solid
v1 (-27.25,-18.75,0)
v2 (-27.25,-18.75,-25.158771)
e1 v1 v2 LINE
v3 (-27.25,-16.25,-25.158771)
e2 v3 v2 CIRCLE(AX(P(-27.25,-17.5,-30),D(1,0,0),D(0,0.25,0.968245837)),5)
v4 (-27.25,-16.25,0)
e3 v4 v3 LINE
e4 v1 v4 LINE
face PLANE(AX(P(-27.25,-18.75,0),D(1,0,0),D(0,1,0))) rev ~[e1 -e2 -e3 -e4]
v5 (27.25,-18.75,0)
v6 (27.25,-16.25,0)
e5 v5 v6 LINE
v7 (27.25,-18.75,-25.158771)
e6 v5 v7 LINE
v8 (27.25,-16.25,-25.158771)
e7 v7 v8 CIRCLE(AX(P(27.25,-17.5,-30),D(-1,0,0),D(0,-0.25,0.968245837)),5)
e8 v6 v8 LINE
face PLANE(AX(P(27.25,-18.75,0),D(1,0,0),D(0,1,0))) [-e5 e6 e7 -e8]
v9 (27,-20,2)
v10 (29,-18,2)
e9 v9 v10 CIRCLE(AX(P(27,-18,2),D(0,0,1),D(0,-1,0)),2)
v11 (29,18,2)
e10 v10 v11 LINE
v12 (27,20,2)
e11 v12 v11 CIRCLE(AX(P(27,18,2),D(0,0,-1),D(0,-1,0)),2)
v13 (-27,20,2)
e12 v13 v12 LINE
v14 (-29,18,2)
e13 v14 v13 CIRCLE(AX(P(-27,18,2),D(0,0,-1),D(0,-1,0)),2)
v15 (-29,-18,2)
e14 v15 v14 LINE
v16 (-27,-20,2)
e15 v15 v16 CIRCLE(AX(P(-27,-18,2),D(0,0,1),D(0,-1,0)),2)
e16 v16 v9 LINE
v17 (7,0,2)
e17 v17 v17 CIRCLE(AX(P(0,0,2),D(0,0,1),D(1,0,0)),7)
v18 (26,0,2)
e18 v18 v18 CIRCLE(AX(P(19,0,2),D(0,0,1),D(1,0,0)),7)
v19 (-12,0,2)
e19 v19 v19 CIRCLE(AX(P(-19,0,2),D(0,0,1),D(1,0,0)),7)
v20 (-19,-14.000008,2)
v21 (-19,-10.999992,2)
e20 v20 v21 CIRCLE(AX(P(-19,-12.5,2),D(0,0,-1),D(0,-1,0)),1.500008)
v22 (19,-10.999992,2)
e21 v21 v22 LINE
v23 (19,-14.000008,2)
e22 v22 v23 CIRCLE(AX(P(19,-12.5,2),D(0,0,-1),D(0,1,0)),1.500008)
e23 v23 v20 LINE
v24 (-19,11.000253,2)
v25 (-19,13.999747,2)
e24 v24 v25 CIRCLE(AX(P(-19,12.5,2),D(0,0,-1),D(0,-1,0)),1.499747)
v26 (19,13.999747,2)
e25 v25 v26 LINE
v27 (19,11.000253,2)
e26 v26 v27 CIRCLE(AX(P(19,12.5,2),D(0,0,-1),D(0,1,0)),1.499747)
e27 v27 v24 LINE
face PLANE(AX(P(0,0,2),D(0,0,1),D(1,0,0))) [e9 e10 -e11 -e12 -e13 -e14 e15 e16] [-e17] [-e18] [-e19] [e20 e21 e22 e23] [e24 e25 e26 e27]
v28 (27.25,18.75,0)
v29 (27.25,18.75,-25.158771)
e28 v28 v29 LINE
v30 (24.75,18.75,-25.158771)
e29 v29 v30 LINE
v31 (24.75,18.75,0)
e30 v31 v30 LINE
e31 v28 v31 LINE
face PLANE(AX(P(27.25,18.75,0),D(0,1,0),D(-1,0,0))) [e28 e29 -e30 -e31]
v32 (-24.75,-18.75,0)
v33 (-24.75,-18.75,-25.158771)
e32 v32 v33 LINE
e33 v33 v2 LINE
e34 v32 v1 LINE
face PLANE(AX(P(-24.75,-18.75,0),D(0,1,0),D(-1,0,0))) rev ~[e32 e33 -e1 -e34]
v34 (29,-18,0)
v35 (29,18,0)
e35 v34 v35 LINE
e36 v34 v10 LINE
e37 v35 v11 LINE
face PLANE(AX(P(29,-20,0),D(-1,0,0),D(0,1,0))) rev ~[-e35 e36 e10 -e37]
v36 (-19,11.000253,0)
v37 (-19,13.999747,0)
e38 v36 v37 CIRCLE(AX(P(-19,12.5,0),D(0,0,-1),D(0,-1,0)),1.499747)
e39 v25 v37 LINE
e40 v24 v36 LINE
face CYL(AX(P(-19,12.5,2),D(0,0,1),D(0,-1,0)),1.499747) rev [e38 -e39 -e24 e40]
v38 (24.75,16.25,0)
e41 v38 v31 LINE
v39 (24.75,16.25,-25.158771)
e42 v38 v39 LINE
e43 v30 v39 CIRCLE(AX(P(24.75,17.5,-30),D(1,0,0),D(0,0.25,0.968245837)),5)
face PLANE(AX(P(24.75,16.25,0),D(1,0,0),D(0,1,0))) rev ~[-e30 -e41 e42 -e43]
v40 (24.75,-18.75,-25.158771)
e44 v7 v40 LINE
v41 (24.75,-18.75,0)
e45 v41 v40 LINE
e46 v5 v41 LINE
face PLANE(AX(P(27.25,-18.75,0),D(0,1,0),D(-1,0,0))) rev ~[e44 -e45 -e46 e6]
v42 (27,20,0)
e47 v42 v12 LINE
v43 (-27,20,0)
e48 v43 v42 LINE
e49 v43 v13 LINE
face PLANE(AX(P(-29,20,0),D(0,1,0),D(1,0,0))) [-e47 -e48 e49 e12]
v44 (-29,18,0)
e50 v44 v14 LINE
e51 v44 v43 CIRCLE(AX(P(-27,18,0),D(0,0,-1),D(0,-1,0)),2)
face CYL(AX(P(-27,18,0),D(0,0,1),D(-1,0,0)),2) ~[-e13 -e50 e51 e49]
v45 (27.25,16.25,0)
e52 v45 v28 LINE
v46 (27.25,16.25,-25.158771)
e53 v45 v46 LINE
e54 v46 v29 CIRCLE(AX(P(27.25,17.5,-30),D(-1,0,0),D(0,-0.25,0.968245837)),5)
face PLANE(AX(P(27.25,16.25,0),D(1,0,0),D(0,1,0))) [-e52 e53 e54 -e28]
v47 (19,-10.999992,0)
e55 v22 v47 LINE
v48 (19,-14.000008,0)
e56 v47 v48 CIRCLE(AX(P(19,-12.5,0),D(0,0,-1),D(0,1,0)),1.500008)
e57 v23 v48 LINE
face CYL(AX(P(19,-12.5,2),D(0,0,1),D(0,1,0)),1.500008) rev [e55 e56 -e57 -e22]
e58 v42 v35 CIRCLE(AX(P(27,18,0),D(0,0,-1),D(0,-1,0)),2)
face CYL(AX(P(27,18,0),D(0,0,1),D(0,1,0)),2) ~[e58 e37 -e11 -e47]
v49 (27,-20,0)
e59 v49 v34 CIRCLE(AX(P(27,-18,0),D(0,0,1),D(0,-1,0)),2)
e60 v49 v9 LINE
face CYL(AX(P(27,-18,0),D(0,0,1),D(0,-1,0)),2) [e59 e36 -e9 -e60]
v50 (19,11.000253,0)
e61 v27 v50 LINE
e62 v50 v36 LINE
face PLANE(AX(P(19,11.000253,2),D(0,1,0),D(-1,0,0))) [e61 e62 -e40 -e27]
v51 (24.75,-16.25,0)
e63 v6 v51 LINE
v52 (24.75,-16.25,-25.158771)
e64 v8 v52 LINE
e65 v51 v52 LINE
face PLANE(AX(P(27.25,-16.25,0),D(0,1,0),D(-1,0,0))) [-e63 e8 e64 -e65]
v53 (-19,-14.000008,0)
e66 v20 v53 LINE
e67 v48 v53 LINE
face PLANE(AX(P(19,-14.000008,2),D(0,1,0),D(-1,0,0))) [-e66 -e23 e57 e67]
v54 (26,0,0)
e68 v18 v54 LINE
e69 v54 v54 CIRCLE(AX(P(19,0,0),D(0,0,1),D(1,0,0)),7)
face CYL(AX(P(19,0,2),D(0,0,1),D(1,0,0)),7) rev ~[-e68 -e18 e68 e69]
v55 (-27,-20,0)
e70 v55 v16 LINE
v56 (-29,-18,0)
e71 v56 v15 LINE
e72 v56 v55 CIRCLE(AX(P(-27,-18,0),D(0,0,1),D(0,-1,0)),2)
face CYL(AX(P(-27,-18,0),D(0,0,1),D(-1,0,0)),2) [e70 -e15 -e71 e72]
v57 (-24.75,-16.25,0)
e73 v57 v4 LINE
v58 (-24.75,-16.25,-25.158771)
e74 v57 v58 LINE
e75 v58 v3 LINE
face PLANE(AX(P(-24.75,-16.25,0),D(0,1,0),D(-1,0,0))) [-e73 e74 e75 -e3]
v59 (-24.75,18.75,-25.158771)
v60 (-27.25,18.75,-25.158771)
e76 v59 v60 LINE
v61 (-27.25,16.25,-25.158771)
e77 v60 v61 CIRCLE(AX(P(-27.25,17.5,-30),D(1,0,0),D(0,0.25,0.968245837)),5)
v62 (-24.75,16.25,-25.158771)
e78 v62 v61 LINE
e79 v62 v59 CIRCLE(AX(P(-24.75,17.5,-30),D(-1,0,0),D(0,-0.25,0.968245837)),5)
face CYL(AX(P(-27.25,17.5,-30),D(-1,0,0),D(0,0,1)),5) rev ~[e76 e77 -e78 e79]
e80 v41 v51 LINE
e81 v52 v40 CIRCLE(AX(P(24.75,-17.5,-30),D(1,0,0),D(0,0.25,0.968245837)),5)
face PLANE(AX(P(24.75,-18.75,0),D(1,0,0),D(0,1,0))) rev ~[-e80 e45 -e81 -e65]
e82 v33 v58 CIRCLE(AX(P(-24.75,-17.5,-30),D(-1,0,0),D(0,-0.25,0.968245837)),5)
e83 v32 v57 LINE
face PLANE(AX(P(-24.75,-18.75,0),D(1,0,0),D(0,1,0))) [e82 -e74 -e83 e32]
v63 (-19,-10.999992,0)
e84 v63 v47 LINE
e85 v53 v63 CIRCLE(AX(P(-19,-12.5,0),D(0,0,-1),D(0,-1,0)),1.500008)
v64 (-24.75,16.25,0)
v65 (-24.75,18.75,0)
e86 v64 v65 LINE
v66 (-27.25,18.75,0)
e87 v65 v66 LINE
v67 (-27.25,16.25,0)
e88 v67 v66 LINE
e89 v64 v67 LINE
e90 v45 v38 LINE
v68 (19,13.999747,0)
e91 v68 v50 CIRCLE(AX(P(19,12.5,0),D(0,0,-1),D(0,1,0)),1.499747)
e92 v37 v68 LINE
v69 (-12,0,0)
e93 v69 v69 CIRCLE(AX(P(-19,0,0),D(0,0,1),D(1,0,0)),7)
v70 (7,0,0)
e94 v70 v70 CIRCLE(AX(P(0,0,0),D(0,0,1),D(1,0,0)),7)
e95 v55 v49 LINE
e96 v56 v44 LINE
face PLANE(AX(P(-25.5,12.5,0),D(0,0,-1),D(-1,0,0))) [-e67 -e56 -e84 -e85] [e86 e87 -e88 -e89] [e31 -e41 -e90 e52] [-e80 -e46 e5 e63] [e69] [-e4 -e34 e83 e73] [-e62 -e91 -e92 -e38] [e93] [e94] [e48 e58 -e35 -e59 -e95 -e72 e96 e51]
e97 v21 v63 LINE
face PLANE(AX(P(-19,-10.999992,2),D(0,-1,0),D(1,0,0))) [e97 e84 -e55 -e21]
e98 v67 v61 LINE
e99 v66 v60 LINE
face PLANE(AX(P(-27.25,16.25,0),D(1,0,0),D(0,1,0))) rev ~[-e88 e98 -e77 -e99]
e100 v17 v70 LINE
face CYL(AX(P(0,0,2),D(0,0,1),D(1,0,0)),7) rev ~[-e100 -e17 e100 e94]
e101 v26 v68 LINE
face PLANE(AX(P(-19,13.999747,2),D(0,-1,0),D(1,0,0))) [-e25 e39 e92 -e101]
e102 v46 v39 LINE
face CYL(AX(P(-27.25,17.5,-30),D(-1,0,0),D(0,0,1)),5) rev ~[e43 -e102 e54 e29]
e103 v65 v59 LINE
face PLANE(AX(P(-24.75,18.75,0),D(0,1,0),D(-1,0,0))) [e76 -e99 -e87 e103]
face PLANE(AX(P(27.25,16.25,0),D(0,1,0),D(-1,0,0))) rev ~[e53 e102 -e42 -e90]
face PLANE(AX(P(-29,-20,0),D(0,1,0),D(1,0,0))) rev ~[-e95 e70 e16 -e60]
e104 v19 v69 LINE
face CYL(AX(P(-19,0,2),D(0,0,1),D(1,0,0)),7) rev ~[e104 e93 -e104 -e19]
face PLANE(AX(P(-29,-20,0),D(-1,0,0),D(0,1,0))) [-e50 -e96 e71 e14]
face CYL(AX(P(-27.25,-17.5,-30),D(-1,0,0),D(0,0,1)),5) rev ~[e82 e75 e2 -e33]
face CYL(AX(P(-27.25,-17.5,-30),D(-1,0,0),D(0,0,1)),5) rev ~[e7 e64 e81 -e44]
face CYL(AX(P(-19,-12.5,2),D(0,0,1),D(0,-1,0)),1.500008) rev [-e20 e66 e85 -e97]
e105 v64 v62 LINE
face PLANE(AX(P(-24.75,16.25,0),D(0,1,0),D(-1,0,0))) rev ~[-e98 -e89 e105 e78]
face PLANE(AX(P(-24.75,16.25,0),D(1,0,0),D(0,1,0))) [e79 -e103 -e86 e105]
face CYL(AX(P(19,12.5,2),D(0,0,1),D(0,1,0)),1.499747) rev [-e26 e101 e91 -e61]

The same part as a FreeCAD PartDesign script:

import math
import FreeCAD as App
import Part
import Sketcher
from FreeCAD import Vector


def edges_at(feature, points):
    """Names of the edges that pass closest to the given points."""
    edges = feature.Shape.Edges
    near = lambda p: min(range(len(edges)), key=lambda i: edges[i].distToShape(Part.Vertex(*p))[0])
    return sorted({f"Edge{near(p) + 1}" for p in points})


def add_polygon(sketch, points):
    """Adds a closed chain of lines whose ends are joined by coincident constraints."""
    first, n = sketch.GeometryCount, len(points)
    for a, b in zip(points, points[1:] + points[:1]):
        sketch.addGeometry(Part.LineSegment(App.Vector(*a, 0), App.Vector(*b, 0)), False)
    for i in range(n):
        sketch.addConstraint(Sketcher.Constraint("Coincident", first + i, 2, first + (i + 1) % n, 1))

doc = App.newDocument("Part")
params = doc.addObject("Spreadsheet::Sheet", "Params")
for row, (alias, value) in enumerate([
    ("sketch1_width", "58 mm"),
    ("sketch1_height", "40 mm"),
    ("pad1_length", "2 mm"),
    ("sketch2_diameter", "14 mm"),
    ("sketch2_width", "38 mm"),
    ("pocket1_length", "2 mm"),
    ("fillet_radius", "2 mm"),
    ("sketch3_diameter", "5 mm"),
    ("pocket2_length", "2 mm"),
    ("sketch4_diameter", "5 mm"),
    ("pad2_length", "2 mm"),
    ("sketch5_width", "2.5 mm"),
    ("pad3_length", "30 mm"),
    ("sketch6_diameter", "10 mm"),
    ("pocket3_length", "66 mm"),
], start=1):
    params.set(f"A{row}", alias)
    params.set(f"B{row}", "=" + value)
    params.setAlias(f"B{row}", alias)

body = doc.addObject("PartDesign::Body", "Body")

# Sketch on XY plane
sketch1 = doc.addObject("Sketcher::SketchObject", "Sketch")
body.addObject(sketch1)
sketch1.AttachmentSupport = (doc.XY_Plane, [""])
sketch1.MapMode = "FlatFace"
add_polygon(sketch1, [(-29, 20), (-29, -20), (29, -20), (29, 20)])  # lines 0-3
sketch1.addConstraint([
    Sketcher.Constraint("Vertical", 0),
    Sketcher.Constraint("Horizontal", 1),
    Sketcher.Constraint("Vertical", 2),
    Sketcher.Constraint("Horizontal", 3),
    Sketcher.Constraint("Symmetric", 0, 2, 2, 2, -1, 1),
    Sketcher.Constraint("DistanceX", 1, 1, 1, 2, 58.0),
    Sketcher.Constraint("DistanceY", 0, 2, 0, 1, 40.0),
])
sketch1.setExpression("Constraints[9]", "Params.sketch1_width")
sketch1.setExpression("Constraints[10]", "Params.sketch1_height")
pad1 = doc.addObject("PartDesign::Pad", "Pad")
body.addObject(pad1)
pad1.Profile = sketch1
pad1.setExpression("Length", "Params.pad1_length")

# Sketch on XY plane
sketch2 = doc.addObject("Sketcher::SketchObject", "Sketch001")
body.addObject(sketch2)
sketch2.AttachmentSupport = (doc.XY_Plane, [""])
sketch2.MapMode = "FlatFace"
sketch2.AttachmentOffset = App.Placement(Vector(0, 0, 2), App.Rotation())
sketch2.addGeometry([
    Part.Circle(Vector(0, 0, 0), Vector(0, 0, 1), 7),  # 0
    Part.Circle(Vector(19, 0, 0), Vector(0, 0, 1), 7),  # 1
    Part.Circle(Vector(-19, 0, 0), Vector(0, 0, 1), 7),  # 2
    Part.LineSegment(Vector(19, 14, 0), Vector(-19, 14, 0)),  # 3
    Part.ArcOfCircle(Part.Circle(Vector(-19, 12.5, 0), Vector(0, 0, 1), 1.5), math.radians(90), math.radians(270)),  # 4
    Part.LineSegment(Vector(-19, 11, 0), Vector(19, 11, 0)),  # 5
    Part.ArcOfCircle(Part.Circle(Vector(19, 12.5, 0), Vector(0, 0, 1), 1.5), math.radians(-90), math.radians(90)),  # 6
    Part.LineSegment(Vector(19, -11, 0), Vector(-19, -11, 0)),  # 7
    Part.ArcOfCircle(Part.Circle(Vector(-19, -12.5, 0), Vector(0, 0, 1), 1.5), math.radians(90), math.radians(270)),  # 8
    Part.LineSegment(Vector(-19, -14, 0), Vector(19, -14, 0)),  # 9
    Part.ArcOfCircle(Part.Circle(Vector(19, -12.5, 0), Vector(0, 0, 1), 1.5), math.radians(-90), math.radians(90)),  # 10
], False)
sketch2.addConstraint([
    Sketcher.Constraint("Tangent", 3, 2, 4, 1),
    Sketcher.Constraint("Tangent", 4, 2, 5, 1),
    Sketcher.Constraint("Tangent", 5, 2, 6, 1),
    Sketcher.Constraint("Tangent", 6, 2, 3, 1),
    Sketcher.Constraint("Tangent", 7, 2, 8, 1),
    Sketcher.Constraint("Tangent", 8, 2, 9, 1),
    Sketcher.Constraint("Tangent", 9, 2, 10, 1),
    Sketcher.Constraint("Tangent", 10, 2, 7, 1),
    Sketcher.Constraint("Horizontal", 3),
    Sketcher.Constraint("Horizontal", 5),
    Sketcher.Constraint("Horizontal", 7),
    Sketcher.Constraint("Horizontal", 9),
    Sketcher.Constraint("Coincident", 0, 3, -1, 1),
    Sketcher.Constraint("Equal", 0, 1),
    Sketcher.Constraint("Equal", 1, 2),
    Sketcher.Constraint("Symmetric", 1, 3, 2, 3, -1, 1),
    Sketcher.Constraint("Symmetric", 6, 3, 8, 3, -1, 1),
    Sketcher.Constraint("PointOnObject", 1, 3, -1),
    Sketcher.Constraint("Vertical", 2, 3, 4, 3),
    Sketcher.Constraint("Vertical", 1, 3, 6, 3),
    Sketcher.Constraint("Vertical", 6, 3, 10, 3),
    Sketcher.Constraint("Diameter", 0, 14.0),
    Sketcher.Constraint("DistanceX", 3, 2, 3, 1, 38.0),
    Sketcher.Constraint("DistanceY", 8, 3, 4, 3, 25.0),
    Sketcher.Constraint("Radius", 8, 1.500008),
    Sketcher.Constraint("Radius", 4, 1.499747),
])
sketch2.setExpression("Constraints[21]", "Params.sketch2_diameter")
sketch2.setExpression("Constraints[22]", "Params.sketch2_width")
pocket1 = doc.addObject("PartDesign::Pocket", "Pocket")
body.addObject(pocket1)
pocket1.Profile = sketch2
pocket1.setExpression("Length", "Params.pocket1_length")
doc.recompute()

fillet = doc.addObject("PartDesign::Fillet", "Fillet")
body.addObject(fillet)
fillet.Base = (pocket1, edges_at(pocket1, [
    (29, -20, 1),
    (-29, -20, 1),
    (-29, 20, 1),
    (29, 20, 1),
]))
fillet.setExpression("Radius", "Params.fillet_radius")

# Sketch on XY plane
sketch3 = doc.addObject("Sketcher::SketchObject", "Sketch002")
body.addObject(sketch3)
sketch3.AttachmentSupport = (doc.XY_Plane, [""])
sketch3.MapMode = "FlatFace"
sketch3.addGeometry([
    Part.Circle(Vector(-25.5, 12.5, 0), Vector(0, 0, 1), 2.5),
    Part.Circle(Vector(-25.5, -12.5, 0), Vector(0, 0, 1), 2.5),
    Part.Circle(Vector(25.5, -12.5, 0), Vector(0, 0, 1), 2.5),
    Part.Circle(Vector(25.5, 12.5, 0), Vector(0, 0, 1), 2.5),
], False)
sketch3.addConstraint([
    Sketcher.Constraint("Equal", 0, 1),
    Sketcher.Constraint("Equal", 1, 2),
    Sketcher.Constraint("Equal", 2, 3),
    Sketcher.Constraint("Symmetric", 0, 3, 2, 3, -1, 1),
    Sketcher.Constraint("Symmetric", 1, 3, 3, 3, -1, 1),
    Sketcher.Constraint("Symmetric", 1, 3, 2, 3, -2),
    Sketcher.Constraint("Diameter", 0, 5.0),
    Sketcher.Constraint("DistanceY", 1, 3, 0, 3, 25.0),
    Sketcher.Constraint("DistanceX", 1, 3, 2, 3, 51.0),
])
sketch3.setExpression("Constraints[6]", "Params.sketch3_diameter")
pocket2 = doc.addObject("PartDesign::Pocket", "Pocket001")
body.addObject(pocket2)
pocket2.Profile = sketch3
pocket2.setExpression("Length", "Params.pocket2_length")
pocket2.Reversed = True

# Sketch on XY plane
sketch4 = doc.addObject("Sketcher::SketchObject", "Sketch003")
body.addObject(sketch4)
sketch4.AttachmentSupport = (doc.XY_Plane, [""])
sketch4.MapMode = "FlatFace"
sketch4.addGeometry([
    Part.Circle(Vector(-25.5, 12.5, 0), Vector(0, 0, 1), 2.5),
    Part.Circle(Vector(-25.5, -12.5, 0), Vector(0, 0, 1), 2.5),
    Part.Circle(Vector(25.5, -12.5, 0), Vector(0, 0, 1), 2.5),
    Part.Circle(Vector(25.5, 12.5, 0), Vector(0, 0, 1), 2.5),
], False)
sketch4.addConstraint([
    Sketcher.Constraint("Equal", 0, 1),
    Sketcher.Constraint("Equal", 1, 2),
    Sketcher.Constraint("Equal", 2, 3),
    Sketcher.Constraint("Symmetric", 0, 3, 2, 3, -1, 1),
    Sketcher.Constraint("Symmetric", 1, 3, 3, 3, -1, 1),
    Sketcher.Constraint("Symmetric", 1, 3, 2, 3, -2),
    Sketcher.Constraint("Diameter", 0, 5.0),
    Sketcher.Constraint("DistanceY", 1, 3, 0, 3, 25.0),
    Sketcher.Constraint("DistanceX", 1, 3, 2, 3, 51.0),
])
sketch4.setExpression("Constraints[6]", "Params.sketch4_diameter")
pad2 = doc.addObject("PartDesign::Pad", "Pad001")
body.addObject(pad2)
pad2.Profile = sketch4
pad2.setExpression("Length", "Params.pad2_length")

# Sketch on XY plane
sketch5 = doc.addObject("Sketcher::SketchObject", "Sketch004")
body.addObject(sketch5)
sketch5.AttachmentSupport = (doc.XY_Plane, [""])
sketch5.MapMode = "FlatFace"
add_polygon(sketch5, [(27.2, 18.8), (27.2, 16.2), (24.8, 16.2), (24.8, 18.8)])  # lines 0-3
add_polygon(sketch5, [(27.2, -16.2), (27.2, -18.8), (24.8, -18.8), (24.8, -16.2)])  # lines 4-7
add_polygon(sketch5, [(-24.8, -16.2), (-24.8, -18.8), (-27.2, -18.8), (-27.2, -16.2)])  # lines 8-11
add_polygon(sketch5, [(-24.8, 18.8), (-24.8, 16.2), (-27.2, 16.2), (-27.2, 18.8)])  # lines 12-15
sketch5.addConstraint([
    Sketcher.Constraint("Vertical", 0),
    Sketcher.Constraint("Horizontal", 1),
    Sketcher.Constraint("Vertical", 2),
    Sketcher.Constraint("Horizontal", 3),
    Sketcher.Constraint("Vertical", 4),
    Sketcher.Constraint("Horizontal", 5),
    Sketcher.Constraint("Vertical", 6),
    Sketcher.Constraint("Horizontal", 7),
    Sketcher.Constraint("Vertical", 8),
    Sketcher.Constraint("Horizontal", 9),
    Sketcher.Constraint("Vertical", 10),
    Sketcher.Constraint("Horizontal", 11),
    Sketcher.Constraint("Vertical", 12),
    Sketcher.Constraint("Horizontal", 13),
    Sketcher.Constraint("Vertical", 14),
    Sketcher.Constraint("Horizontal", 15),
    Sketcher.Constraint("Symmetric", 2, 2, 8, 2, -1, 1),
    Sketcher.Constraint("Symmetric", 0, 2, 10, 2, -1, 1),
    Sketcher.Constraint("Symmetric", 6, 2, 12, 2, -1, 1),
    Sketcher.Constraint("Symmetric", 4, 2, 14, 2, -1, 1),
    Sketcher.Constraint("Symmetric", 5, 2, 8, 2, -2),
    Sketcher.Constraint("Symmetric", 7, 2, 10, 2, -2),
    Sketcher.Constraint("Equal", 15, 0),
    Sketcher.Constraint("DistanceX", 1, 2, 1, 1, 2.5),
    Sketcher.Constraint("DistanceY", 4, 2, 0, 2, 35.0),
    Sketcher.Constraint("DistanceX", 8, 2, 4, 2, 52.0),
])
sketch5.setExpression("Constraints[39]", "Params.sketch5_width")
pad3 = doc.addObject("PartDesign::Pad", "Pad002")
body.addObject(pad3)
pad3.Profile = sketch5
pad3.setExpression("Length", "Params.pad3_length")
pad3.Reversed = True

# Sketch on YZ plane
sketch6 = doc.addObject("Sketcher::SketchObject", "Sketch005")
body.addObject(sketch6)
sketch6.AttachmentSupport = (doc.YZ_Plane, [""])
sketch6.MapMode = "FlatFace"
sketch6.AttachmentOffset = App.Placement(Vector(0, 0, -27.25), App.Rotation())
sketch6.addGeometry([
    Part.Circle(Vector(18, -30, 0), Vector(0, 0, 1), 5),
    Part.Circle(Vector(-18, -30, 0), Vector(0, 0, 1), 5),
], False)
sketch6.addConstraint([
    Sketcher.Constraint("Equal", 0, 1),
    Sketcher.Constraint("Symmetric", 0, 3, 1, 3, -2),
    Sketcher.Constraint("Diameter", 0, 10.0),
    Sketcher.Constraint("DistanceY", 0, 3, -1, 1, 30.0),
    Sketcher.Constraint("DistanceX", 1, 3, 0, 3, 35.0),
])
sketch6.setExpression("Constraints[2]", "Params.sketch6_diameter")
pocket3 = doc.addObject("PartDesign::Pocket", "Pocket002")
body.addObject(pocket3)
pocket3.Profile = sketch6
pocket3.setExpression("Length", "Params.pocket3_length")
pocket3.Reversed = True

doc.recompute()
